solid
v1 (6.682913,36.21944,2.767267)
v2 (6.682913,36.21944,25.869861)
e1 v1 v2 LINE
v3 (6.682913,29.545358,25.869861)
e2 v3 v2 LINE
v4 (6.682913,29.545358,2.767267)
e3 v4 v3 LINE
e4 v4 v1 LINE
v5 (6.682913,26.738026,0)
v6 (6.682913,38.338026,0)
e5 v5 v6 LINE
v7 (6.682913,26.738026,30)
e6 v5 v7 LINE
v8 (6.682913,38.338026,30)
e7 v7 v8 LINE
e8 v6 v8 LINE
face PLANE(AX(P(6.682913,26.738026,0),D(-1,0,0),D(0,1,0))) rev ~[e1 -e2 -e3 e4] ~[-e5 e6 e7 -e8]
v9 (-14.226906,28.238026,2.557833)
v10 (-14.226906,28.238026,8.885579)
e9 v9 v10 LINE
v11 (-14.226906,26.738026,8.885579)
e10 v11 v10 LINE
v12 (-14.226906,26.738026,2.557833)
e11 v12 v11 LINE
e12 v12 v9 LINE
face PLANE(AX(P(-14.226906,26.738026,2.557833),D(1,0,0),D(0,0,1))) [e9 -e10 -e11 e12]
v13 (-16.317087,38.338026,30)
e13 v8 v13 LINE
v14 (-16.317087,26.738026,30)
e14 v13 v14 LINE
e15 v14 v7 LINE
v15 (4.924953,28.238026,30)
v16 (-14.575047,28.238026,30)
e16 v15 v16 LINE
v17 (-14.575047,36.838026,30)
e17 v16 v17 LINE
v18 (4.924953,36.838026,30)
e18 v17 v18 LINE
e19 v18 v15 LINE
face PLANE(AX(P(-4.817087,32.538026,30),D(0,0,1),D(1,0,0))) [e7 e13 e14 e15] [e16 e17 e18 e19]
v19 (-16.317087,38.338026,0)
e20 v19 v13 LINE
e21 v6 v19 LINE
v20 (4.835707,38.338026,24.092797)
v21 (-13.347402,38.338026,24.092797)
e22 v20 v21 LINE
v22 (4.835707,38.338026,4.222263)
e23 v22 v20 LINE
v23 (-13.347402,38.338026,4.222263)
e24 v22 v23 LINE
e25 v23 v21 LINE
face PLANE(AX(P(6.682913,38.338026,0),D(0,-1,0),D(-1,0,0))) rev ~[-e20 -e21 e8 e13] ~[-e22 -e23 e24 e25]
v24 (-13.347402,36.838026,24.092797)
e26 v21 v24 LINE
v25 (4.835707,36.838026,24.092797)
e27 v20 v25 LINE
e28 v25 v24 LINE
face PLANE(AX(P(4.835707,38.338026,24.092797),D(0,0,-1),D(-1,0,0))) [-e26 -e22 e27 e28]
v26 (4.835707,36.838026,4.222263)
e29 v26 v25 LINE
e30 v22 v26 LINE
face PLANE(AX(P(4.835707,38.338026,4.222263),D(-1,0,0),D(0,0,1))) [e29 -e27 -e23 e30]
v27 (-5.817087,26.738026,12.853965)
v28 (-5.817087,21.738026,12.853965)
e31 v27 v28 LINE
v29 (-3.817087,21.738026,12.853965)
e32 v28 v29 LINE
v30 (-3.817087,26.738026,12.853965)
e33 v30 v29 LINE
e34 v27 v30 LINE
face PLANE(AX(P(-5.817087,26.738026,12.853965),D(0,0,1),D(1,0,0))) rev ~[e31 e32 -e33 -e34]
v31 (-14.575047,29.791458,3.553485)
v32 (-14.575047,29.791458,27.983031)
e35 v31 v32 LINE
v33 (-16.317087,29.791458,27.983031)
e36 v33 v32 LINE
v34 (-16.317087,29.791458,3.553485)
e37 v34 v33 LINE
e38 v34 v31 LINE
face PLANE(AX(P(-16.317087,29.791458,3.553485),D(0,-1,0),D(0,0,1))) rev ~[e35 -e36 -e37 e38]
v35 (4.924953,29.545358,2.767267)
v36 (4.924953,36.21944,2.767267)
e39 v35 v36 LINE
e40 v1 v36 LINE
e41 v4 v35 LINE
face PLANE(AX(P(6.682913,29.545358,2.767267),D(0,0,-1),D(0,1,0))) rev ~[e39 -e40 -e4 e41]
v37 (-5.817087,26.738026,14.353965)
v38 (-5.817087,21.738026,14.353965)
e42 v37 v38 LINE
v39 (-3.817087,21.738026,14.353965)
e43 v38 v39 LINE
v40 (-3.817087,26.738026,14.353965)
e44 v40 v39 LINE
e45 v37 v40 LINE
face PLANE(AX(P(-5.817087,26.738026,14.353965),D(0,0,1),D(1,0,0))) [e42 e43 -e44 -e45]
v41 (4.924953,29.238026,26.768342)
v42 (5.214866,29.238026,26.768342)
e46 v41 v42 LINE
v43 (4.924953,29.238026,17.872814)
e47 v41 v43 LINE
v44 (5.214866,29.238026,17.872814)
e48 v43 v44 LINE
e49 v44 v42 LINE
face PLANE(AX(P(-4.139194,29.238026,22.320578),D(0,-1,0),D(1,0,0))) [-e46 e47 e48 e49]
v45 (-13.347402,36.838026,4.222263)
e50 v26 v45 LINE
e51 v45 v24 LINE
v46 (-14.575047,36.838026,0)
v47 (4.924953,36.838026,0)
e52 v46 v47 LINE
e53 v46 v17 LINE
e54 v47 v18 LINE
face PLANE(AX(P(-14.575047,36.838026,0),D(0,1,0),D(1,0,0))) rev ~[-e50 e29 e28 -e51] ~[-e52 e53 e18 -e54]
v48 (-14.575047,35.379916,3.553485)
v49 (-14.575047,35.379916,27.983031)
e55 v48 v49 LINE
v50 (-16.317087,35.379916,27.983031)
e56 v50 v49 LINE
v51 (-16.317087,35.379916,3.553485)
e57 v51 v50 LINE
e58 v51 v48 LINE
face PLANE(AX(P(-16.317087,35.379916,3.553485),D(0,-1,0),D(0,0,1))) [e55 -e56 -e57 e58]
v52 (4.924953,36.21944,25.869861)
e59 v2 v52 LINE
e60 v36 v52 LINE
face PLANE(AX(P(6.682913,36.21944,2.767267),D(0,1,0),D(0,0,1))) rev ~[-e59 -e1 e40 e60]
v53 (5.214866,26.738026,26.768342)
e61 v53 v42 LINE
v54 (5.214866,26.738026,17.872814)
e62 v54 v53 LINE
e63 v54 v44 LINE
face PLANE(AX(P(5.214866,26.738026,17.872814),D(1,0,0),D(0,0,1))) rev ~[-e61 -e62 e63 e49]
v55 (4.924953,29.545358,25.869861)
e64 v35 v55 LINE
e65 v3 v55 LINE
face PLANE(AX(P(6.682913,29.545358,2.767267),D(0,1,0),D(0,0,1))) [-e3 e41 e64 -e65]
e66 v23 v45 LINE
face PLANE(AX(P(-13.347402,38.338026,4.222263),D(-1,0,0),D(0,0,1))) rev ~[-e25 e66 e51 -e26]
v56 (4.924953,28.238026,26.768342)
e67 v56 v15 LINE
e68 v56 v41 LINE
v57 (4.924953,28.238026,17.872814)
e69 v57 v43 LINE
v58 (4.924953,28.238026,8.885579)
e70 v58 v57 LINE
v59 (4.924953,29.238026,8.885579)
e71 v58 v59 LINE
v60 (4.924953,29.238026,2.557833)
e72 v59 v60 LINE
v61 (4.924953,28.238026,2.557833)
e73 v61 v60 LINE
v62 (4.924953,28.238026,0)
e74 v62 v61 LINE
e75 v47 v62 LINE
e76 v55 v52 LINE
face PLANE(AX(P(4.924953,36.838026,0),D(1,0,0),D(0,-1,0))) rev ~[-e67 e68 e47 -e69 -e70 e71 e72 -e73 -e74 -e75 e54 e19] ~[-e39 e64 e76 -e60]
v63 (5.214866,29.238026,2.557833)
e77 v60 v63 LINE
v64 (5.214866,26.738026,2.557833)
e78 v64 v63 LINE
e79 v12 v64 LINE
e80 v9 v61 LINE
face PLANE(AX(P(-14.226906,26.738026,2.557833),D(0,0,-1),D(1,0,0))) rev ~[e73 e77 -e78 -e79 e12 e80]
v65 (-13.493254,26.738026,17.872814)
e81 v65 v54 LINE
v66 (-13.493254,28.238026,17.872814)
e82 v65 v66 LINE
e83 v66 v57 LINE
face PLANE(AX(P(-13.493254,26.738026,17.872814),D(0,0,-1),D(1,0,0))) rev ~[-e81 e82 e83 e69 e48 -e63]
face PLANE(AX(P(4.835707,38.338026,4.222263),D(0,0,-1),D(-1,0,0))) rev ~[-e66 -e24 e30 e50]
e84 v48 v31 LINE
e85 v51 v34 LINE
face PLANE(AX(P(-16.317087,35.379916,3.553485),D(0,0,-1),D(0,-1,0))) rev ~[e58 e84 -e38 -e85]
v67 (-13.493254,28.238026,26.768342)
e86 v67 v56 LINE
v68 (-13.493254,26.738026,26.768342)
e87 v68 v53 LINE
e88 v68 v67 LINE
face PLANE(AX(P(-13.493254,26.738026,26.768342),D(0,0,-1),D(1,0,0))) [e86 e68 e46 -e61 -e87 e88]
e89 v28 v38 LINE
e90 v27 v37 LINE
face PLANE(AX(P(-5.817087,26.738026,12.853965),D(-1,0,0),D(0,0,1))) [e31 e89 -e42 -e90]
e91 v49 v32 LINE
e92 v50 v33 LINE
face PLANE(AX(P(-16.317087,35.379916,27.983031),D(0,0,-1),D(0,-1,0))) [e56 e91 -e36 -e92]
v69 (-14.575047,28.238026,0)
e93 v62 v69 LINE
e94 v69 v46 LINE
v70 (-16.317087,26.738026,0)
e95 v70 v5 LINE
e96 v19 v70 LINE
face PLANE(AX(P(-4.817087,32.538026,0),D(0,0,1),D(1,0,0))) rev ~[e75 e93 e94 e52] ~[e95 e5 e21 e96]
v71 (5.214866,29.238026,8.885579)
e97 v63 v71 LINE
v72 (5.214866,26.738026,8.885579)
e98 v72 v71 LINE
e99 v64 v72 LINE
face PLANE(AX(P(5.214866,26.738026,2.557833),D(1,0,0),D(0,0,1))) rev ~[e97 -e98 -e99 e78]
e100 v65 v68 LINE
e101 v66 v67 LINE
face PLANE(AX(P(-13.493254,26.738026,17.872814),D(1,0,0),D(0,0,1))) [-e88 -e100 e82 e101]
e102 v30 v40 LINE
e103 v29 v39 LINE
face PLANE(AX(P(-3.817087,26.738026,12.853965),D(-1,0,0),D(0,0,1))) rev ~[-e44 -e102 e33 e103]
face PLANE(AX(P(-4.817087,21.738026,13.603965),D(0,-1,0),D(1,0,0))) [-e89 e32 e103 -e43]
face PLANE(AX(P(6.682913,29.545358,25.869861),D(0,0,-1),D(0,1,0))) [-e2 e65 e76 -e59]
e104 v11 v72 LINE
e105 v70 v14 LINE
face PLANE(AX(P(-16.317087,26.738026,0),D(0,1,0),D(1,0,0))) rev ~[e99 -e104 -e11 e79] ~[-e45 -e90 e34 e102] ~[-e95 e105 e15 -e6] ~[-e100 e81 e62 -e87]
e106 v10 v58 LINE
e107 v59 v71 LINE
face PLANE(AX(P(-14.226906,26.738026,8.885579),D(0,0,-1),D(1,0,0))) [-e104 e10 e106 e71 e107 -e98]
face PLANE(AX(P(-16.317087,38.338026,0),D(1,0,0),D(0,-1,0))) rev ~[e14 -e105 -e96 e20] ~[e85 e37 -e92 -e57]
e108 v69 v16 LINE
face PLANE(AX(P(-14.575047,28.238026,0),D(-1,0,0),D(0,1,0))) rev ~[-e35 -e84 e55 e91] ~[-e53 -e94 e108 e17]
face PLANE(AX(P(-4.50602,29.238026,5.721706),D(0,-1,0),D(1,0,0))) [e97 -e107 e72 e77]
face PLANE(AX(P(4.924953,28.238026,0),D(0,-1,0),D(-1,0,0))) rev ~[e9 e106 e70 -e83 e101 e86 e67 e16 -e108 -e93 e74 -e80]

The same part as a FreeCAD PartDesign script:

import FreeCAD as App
import Part
import Sketcher

V = App.Vector


def add_polygon(sketch, points):
    """Adds a closed chain of lines whose ends are joined by coincident constraints."""
    first, n = sketch.GeometryCount, len(points)
    for a, b in zip(points, points[1:] + points[:1]):
        sketch.addGeometry(Part.LineSegment(App.Vector(*a, 0), App.Vector(*b, 0)), False)
    for i in range(n):
        sketch.addConstraint(Sketcher.Constraint("Coincident", first + i, 2, first + (i + 1) % n, 1))

doc = App.newDocument("Part")
body = doc.addObject("PartDesign::Body", "Body")

sketch1 = body.newObject("Sketcher::SketchObject", "Sketch")
sketch1.AttachmentSupport = (doc.getObject("XY_Plane"), [""])
sketch1.MapMode = "FlatFace"
add_polygon(sketch1, [(-16, 38), (-16, 27), (7, 27), (7, 38)])
add_polygon(sketch1, [(-15, 28), (-15, 37), (5, 37), (5, 28)])
sketch1.addConstraint([
    Sketcher.Constraint("Vertical", 0),
    Sketcher.Constraint("Horizontal", 1),
    Sketcher.Constraint("Vertical", 2),
    Sketcher.Constraint("Horizontal", 3),
    Sketcher.Constraint("Vertical", 4),
    Sketcher.Constraint("Horizontal", 5),
    Sketcher.Constraint("Vertical", 6),
    Sketcher.Constraint("Horizontal", 7),
    Sketcher.Constraint("DistanceX", 1, 1, 1, 2, 23.0),
    Sketcher.Constraint("DistanceX", 5, 1, 5, 2, 19.5),
    Sketcher.Constraint("DistanceY", 0, 2, 0, 1, 11.6),
    Sketcher.Constraint("DistanceY", 4, 1, 4, 2, 8.6),
    Sketcher.Constraint("DistanceY", 4, 2, 3, 2, 1.5),
    Sketcher.Constraint("DistanceX", 3, 2, 4, 2, 1.74204),
    Sketcher.Constraint("DistanceX", 0, 2, -1, 1, 16.317087),
    Sketcher.Constraint("DistanceY", -1, 1, 0, 2, 26.738026),
])
pad1 = body.newObject("PartDesign::Pad", "Pad")
pad1.Profile = sketch1
pad1.Length = 30

sketch2 = body.newObject("Sketcher::SketchObject", "Sketch001")
sketch2.AttachmentSupport = (doc.getObject("YZ_Plane"), [""])
sketch2.MapMode = "FlatFace"
sketch2.AttachmentOffset = App.Placement(V(0, 0, 6.682913), App.Rotation())
add_polygon(sketch2, [(30, 26), (30, 3), (36, 3), (36, 26)])
sketch2.addConstraint([
    Sketcher.Constraint("Vertical", 0),
    Sketcher.Constraint("Horizontal", 1),
    Sketcher.Constraint("Vertical", 2),
    Sketcher.Constraint("Horizontal", 3),
    Sketcher.Constraint("DistanceX", 1, 1, 1, 2, 6.674083),
    Sketcher.Constraint("DistanceY", 0, 2, 0, 1, 23.102594),
    Sketcher.Constraint("DistanceX", -1, 1, 1, 2, 36.21944),
    Sketcher.Constraint("DistanceY", -1, 1, 2, 2, 25.869861),
])
pocket1 = body.newObject("PartDesign::Pocket", "Pocket")
pocket1.Profile = sketch2
pocket1.Length = 2.5

sketch3 = body.newObject("Sketcher::SketchObject", "Sketch002")
sketch3.AttachmentSupport = (doc.getObject("YZ_Plane"), [""])
sketch3.MapMode = "FlatFace"
sketch3.AttachmentOffset = App.Placement(V(0, 0, -16.317087), App.Rotation())
add_polygon(sketch3, [(35, 28), (35, 4), (30, 4), (30, 28)])
sketch3.addConstraint([
    Sketcher.Constraint("Vertical", 0),
    Sketcher.Constraint("Horizontal", 1),
    Sketcher.Constraint("Vertical", 2),
    Sketcher.Constraint("Horizontal", 3),
    Sketcher.Constraint("DistanceX", 1, 2, 1, 1, 5.588458),
    Sketcher.Constraint("DistanceY", 0, 2, 0, 1, 24.429547),
    Sketcher.Constraint("DistanceY", -1, 1, 2, 2, 27.983031),
    Sketcher.Constraint("DistanceX", -1, 1, 0, 2, 35.379916),
])
pocket2 = body.newObject("PartDesign::Pocket", "Pocket001")
pocket2.Profile = sketch3
pocket2.Length = 2.5
pocket2.Reversed = True

sketch4 = body.newObject("Sketcher::SketchObject", "Sketch003")
sketch4.AttachmentSupport = (doc.getObject("XZ_Plane"), [""])
sketch4.MapMode = "FlatFace"
sketch4.AttachmentOffset = App.Placement(V(0, 0, -38.338026), App.Rotation())
add_polygon(sketch4, [(5, 24), (5, 4), (-13, 4), (-13, 24)])
sketch4.addConstraint([
    Sketcher.Constraint("Vertical", 0),
    Sketcher.Constraint("Horizontal", 1),
    Sketcher.Constraint("Vertical", 2),
    Sketcher.Constraint("Horizontal", 3),
    Sketcher.Constraint("DistanceX", 1, 2, 1, 1, 18.183109),
    Sketcher.Constraint("DistanceX", 1, 2, -1, 1, 13.347402),
    Sketcher.Constraint("DistanceY", 0, 2, 0, 1, 19.870534),
    Sketcher.Constraint("DistanceY", -1, 1, 0, 2, 4.222263),
])
pocket3 = body.newObject("PartDesign::Pocket", "Pocket002")
pocket3.Profile = sketch4
pocket3.Length = 2.5
pocket3.Reversed = True

sketch5 = body.newObject("Sketcher::SketchObject", "Sketch004")
sketch5.AttachmentSupport = (doc.getObject("XZ_Plane"), [""])
sketch5.MapMode = "FlatFace"
sketch5.AttachmentOffset = App.Placement(V(0, 0, -26.738026), App.Rotation())
add_polygon(sketch5, [(-14, 9), (-14, 3), (5, 3), (5, 9)])
add_polygon(sketch5, [(-13, 27), (-13, 18), (5, 18), (5, 27)])
sketch5.addConstraint([
    Sketcher.Constraint("Vertical", 0),
    Sketcher.Constraint("Horizontal", 1),
    Sketcher.Constraint("Vertical", 2),
    Sketcher.Constraint("Horizontal", 3),
    Sketcher.Constraint("Vertical", 4),
    Sketcher.Constraint("Horizontal", 5),
    Sketcher.Constraint("Vertical", 6),
    Sketcher.Constraint("Horizontal", 7),
    Sketcher.Constraint("Vertical", 2, 2, 5, 2),
    Sketcher.Constraint("DistanceX", 1, 1, 1, 2, 19.441772),
    Sketcher.Constraint("DistanceX", 5, 1, 5, 2, 18.70812),
    Sketcher.Constraint("DistanceY", 0, 2, 0, 1, 6.327746),
    Sketcher.Constraint("DistanceY", 4, 2, 4, 1, 8.895528),
    Sketcher.Constraint("DistanceY", -1, 1, 2, 2, 8.885579),
    Sketcher.Constraint("DistanceY", 0, 2, 4, 2, 15.314981),
    Sketcher.Constraint("DistanceX", 0, 2, -1, 1, 14.226906),
])
pocket4 = body.newObject("PartDesign::Pocket", "Pocket003")
pocket4.Profile = sketch5
pocket4.Length = 2.5

sketch6 = body.newObject("Sketcher::SketchObject", "Sketch005")
sketch6.AttachmentSupport = (doc.getObject("XZ_Plane"), [""])
sketch6.MapMode = "FlatFace"
sketch6.AttachmentOffset = App.Placement(V(0, 0, -26.738026), App.Rotation())
add_polygon(sketch6, [(-5.8, 14.4), (-5.8, 12.9), (-3.8, 12.9), (-3.8, 14.4)])
sketch6.addConstraint([
    Sketcher.Constraint("Vertical", 0),
    Sketcher.Constraint("Horizontal", 1),
    Sketcher.Constraint("Vertical", 2),
    Sketcher.Constraint("Horizontal", 3),
    Sketcher.Constraint("DistanceX", 1, 1, 1, 2, 2.0),
    Sketcher.Constraint("DistanceY", 0, 2, 0, 1, 1.5),
    Sketcher.Constraint("DistanceX", 0, 2, -1, 1, 5.817087),
    Sketcher.Constraint("DistanceY", -1, 1, 0, 2, 12.853965),
])
pad2 = body.newObject("PartDesign::Pad", "Pad001")
pad2.Profile = sketch6
pad2.Length = 5

doc.recompute()
